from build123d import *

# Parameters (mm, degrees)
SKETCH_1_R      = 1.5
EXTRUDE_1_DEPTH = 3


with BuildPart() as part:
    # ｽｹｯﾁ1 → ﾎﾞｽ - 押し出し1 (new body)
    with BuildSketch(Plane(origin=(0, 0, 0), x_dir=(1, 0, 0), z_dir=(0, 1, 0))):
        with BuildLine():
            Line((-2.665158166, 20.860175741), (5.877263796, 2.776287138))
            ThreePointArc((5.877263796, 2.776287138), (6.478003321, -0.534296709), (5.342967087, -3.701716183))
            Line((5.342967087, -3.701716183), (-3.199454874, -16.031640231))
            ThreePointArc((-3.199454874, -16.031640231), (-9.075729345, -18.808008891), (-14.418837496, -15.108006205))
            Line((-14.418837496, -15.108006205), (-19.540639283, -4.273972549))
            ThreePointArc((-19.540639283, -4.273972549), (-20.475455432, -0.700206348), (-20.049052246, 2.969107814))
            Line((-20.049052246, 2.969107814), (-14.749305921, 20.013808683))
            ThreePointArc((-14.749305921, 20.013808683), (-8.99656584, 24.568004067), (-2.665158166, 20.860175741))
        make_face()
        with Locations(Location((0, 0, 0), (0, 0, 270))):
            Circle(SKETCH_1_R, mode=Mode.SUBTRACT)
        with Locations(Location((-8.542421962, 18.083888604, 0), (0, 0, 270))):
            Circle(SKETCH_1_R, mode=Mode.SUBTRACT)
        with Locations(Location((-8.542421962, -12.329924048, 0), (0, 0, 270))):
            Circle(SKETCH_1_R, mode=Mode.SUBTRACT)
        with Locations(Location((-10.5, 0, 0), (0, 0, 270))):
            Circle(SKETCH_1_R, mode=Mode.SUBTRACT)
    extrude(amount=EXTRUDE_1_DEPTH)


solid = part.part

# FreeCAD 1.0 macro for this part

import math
import FreeCAD as App
import Part
import Sketcher

V = App.Vector

doc = App.newDocument("Part")
body = doc.addObject("PartDesign::Body", "Body")

# Sketch on XZ plane
sketch1 = body.newObject("Sketcher::SketchObject", "Sketch")
sketch1.AttachmentSupport = (doc.getObject("XZ_Plane"), [""])
sketch1.MapMode = "FlatFace"
sketch1.addGeometry([
    Part.LineSegment(V(5.9, -2.8, 0), V(-2.7, -20.9, 0)),  # 0
    Part.ArcOfCircle(Part.Circle(V(-8.5, -18.1, 0), V(0, 0, 1), 6.5), math.radians(-163), math.radians(-25)),  # 1
    Part.LineSegment(V(-14.7, -20, 0), V(-20, -3, 0)),  # 2
    Part.ArcOfCircle(Part.Circle(V(-10.5, 0, 0), V(0, 0, 1), 10), math.radians(155), math.radians(197)),  # 3
    Part.LineSegment(V(-19.5, 4.3, 0), V(-14.4, 15.1, 0)),  # 4
    Part.ArcOfCircle(Part.Circle(V(-8.5, 12.3, 0), V(0, 0, 1), 6.5), math.radians(35), math.radians(155)),  # 5
    Part.LineSegment(V(-3.2, 16, 0), V(5.3, 3.7, 0)),  # 6
    Part.ArcOfCircle(Part.Circle(V(0, 0, 0), V(0, 0, 1), 6.5), math.radians(-25), math.radians(35)),  # 7
    Part.Circle(V(0, 0, 0), V(0, 0, 1), 1.5),  # 8
    Part.Circle(V(-8.5, 12.3, 0), V(0, 0, 1), 1.5),  # 9
    Part.Circle(V(-10.5, 0, 0), V(0, 0, 1), 1.5),  # 10
    Part.Circle(V(-8.5, -18.1, 0), V(0, 0, 1), 1.5),  # 11
], False)
sketch1.addConstraint([
    Sketcher.Constraint("Tangent", 0, 2, 1, 2),
    Sketcher.Constraint("Tangent", 1, 1, 2, 1),
    Sketcher.Constraint("Tangent", 2, 2, 3, 2),
    Sketcher.Constraint("Tangent", 3, 1, 4, 1),
    Sketcher.Constraint("Tangent", 4, 2, 5, 2),
    Sketcher.Constraint("Tangent", 5, 1, 6, 1),
    Sketcher.Constraint("Tangent", 6, 2, 7, 2),
    Sketcher.Constraint("Tangent", 7, 1, 0, 1),
    Sketcher.Constraint("Coincident", 7, 3, -1, 1),
    Sketcher.Constraint("Coincident", 8, 3, -1, 1),
    Sketcher.Constraint("Coincident", 9, 3, 5, 3),
    Sketcher.Constraint("Coincident", 10, 3, 3, 3),
    Sketcher.Constraint("Coincident", 11, 3, 1, 3),
    Sketcher.Constraint("Equal", 1, 5),
    Sketcher.Constraint("Equal", 5, 7),
    Sketcher.Constraint("Equal", 8, 9),
    Sketcher.Constraint("Equal", 9, 10),
    Sketcher.Constraint("Equal", 10, 11),
    Sketcher.Constraint("PointOnObject", 3, 3, -1),
    Sketcher.Constraint("Vertical", 1, 3, 5, 3),
    Sketcher.Constraint("Diameter", 8, 3.0),
    Sketcher.Constraint("Radius", 3, 10.0),
    Sketcher.Constraint("Radius", 1, 6.5),
    Sketcher.Constraint("Distance", 0, 20.0),
    Sketcher.Constraint("Distance", 6, 15.0),
    Sketcher.Constraint("DistanceX", 3, 3, -1, 1, 10.5),
    Sketcher.Constraint("DistanceY", 1, 1, 2, 2, 17.044701),
])
pad1 = body.newObject("PartDesign::Pad", "Pad")
pad1.Profile = sketch1
pad1.Length = 3
pad1.Reversed = True

doc.recompute()
